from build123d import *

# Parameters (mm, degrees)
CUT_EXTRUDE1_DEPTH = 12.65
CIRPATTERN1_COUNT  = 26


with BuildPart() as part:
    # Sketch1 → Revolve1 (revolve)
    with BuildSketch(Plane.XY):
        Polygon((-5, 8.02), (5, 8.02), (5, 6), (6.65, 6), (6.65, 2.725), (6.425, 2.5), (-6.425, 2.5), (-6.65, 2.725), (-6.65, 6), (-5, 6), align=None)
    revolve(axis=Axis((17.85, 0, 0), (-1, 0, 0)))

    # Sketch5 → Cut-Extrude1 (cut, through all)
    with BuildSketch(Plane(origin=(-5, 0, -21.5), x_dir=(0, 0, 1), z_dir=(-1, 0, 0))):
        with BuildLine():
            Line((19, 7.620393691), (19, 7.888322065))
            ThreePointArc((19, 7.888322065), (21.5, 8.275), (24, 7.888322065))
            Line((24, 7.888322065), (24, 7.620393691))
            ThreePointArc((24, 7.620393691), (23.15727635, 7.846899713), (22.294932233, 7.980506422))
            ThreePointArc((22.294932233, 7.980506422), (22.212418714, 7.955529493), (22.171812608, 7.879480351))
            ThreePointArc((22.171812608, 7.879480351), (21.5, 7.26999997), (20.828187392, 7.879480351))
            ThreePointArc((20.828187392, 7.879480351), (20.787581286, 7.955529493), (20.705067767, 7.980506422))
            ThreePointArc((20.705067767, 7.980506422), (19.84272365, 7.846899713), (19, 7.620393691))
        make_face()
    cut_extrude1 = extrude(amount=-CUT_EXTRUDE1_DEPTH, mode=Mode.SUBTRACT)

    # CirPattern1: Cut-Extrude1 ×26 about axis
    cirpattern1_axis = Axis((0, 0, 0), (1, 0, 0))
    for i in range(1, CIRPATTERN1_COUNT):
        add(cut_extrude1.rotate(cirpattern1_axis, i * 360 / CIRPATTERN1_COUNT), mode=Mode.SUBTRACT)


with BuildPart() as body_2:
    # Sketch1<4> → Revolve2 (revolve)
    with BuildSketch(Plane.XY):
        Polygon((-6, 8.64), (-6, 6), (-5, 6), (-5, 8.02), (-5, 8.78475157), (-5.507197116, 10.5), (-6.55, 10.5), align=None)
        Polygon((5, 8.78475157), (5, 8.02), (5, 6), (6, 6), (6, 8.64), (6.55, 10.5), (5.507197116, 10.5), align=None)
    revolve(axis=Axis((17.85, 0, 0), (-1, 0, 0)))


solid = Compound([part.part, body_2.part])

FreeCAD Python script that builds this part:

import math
import FreeCAD as App
import Part
import Sketcher


def add_polygon(sketch, points):
    """Adds a closed chain of lines whose ends are joined by coincident constraints."""
    first, n = sketch.GeometryCount, len(points)
    for a, b in zip(points, points[1:] + points[:1]):
        sketch.addGeometry(Part.LineSegment(App.Vector(*a, 0), App.Vector(*b, 0)), False)
    for i in range(n):
        sketch.addConstraint(Sketcher.Constraint("Coincident", first + i, 2, first + (i + 1) % n, 1))

doc = App.newDocument("Part")
body = doc.addObject("PartDesign::Body", "Body")

# Sketch on XY plane
sketch1 = body.newObject("Sketcher::SketchObject", "Sketch")
sketch1.AttachmentSupport = (doc.getObject("XY_Plane"), [""])
sketch1.MapMode = "FlatFace"
add_polygon(sketch1, [(5, 8.02), (-5, 8.02), (-5, 6), (-6.65, 6), (-6.65, 2.73), (-6.42, 2.5), (6.42, 2.5), (6.65, 2.73), (6.65, 6), (5, 6)])  # lines 0-9
sketch1.addConstraint(Sketcher.Constraint("Horizontal", 0))
sketch1.addConstraint(Sketcher.Constraint("Vertical", 1))
sketch1.addConstraint(Sketcher.Constraint("Horizontal", 2))
sketch1.addConstraint(Sketcher.Constraint("Vertical", 3))
sketch1.addConstraint(Sketcher.Constraint("Horizontal", 5))
sketch1.addConstraint(Sketcher.Constraint("Vertical", 7))
sketch1.addConstraint(Sketcher.Constraint("Horizontal", 8))
sketch1.addConstraint(Sketcher.Constraint("Vertical", 9))
sketch1.addConstraint(Sketcher.Constraint("Symmetric", 3, 2, 6, 2, -2))
sketch1.addConstraint(Sketcher.Constraint("Symmetric", 1, 2, 8, 2, -2))
sketch1.addConstraint(Sketcher.Constraint("Perpendicular", 4, 6))
sketch1.addConstraint(Sketcher.Constraint("Equal", 4, 6))
sketch1.addConstraint(Sketcher.Constraint("DistanceX", 0, 2, 0, 1, 10.0))
sketch1.addConstraint(Sketcher.Constraint("DistanceY", -1, 1, 1, 2, 6.0))
sketch1.addConstraint(Sketcher.Constraint("DistanceX", 2, 2, 2, 1, 1.65))
sketch1.addConstraint(Sketcher.Constraint("DistanceX", 5, 1, 5, 2, 12.85))
sketch1.addConstraint(Sketcher.Constraint("DistanceY", 1, 2, 1, 1, 2.02))
sketch1.addConstraint(Sketcher.Constraint("DistanceY", -1, 1, 4, 2, 2.5))
revolution = body.newObject("PartDesign::Revolution", "Revolution")
revolution.Profile = sketch1
revolution.ReferenceAxis = (sketch1, ["H_Axis"])
revolution.Angle = 360

# Sketch on YZ plane
sketch2 = body.newObject("Sketcher::SketchObject", "Sketch001")
sketch2.AttachmentSupport = (doc.getObject("YZ_Plane"), [""])
sketch2.MapMode = "FlatFace"
sketch2.AttachmentOffset = App.Placement(App.Vector(0, 0, -5), App.Rotation())
sketch2.addGeometry(Part.LineSegment(App.Vector(7.89, -2.5, 0), App.Vector(7.62, -2.5, 0)), False)
sketch2.addGeometry(Part.ArcOfCircle(Part.Circle(App.Vector(0, 0, 0), App.Vector(0, 0, 1), 8.02), math.radians(-18.16), math.radians(-5.69)), False)
sketch2.addGeometry(Part.ArcOfCircle(Part.Circle(App.Vector(7.87, -0.78, 0), App.Vector(0, 0, 1), 0.11), math.radians(-6), math.radians(84)), False)
sketch2.addGeometry(Part.ArcOfCircle(Part.Circle(App.Vector(7.94, 0, 0), App.Vector(0, 0, 1), 0.68), math.radians(96), math.radians(264)), False)
sketch2.addGeometry(Part.ArcOfCircle(Part.Circle(App.Vector(7.87, 0.78, 0), App.Vector(0, 0, 1), 0.11), math.radians(-84), math.radians(6)), False)
sketch2.addGeometry(Part.ArcOfCircle(Part.Circle(App.Vector(0, 0, 0), App.Vector(0, 0, 1), 8.02), math.radians(5.69), math.radians(18.16)), False)
sketch2.addGeometry(Part.LineSegment(App.Vector(7.62, 2.5, 0), App.Vector(7.89, 2.5, 0)), False)
sketch2.addGeometry(Part.ArcOfCircle(Part.Circle(App.Vector(0, 0, 0), App.Vector(0, 0, 1), 8.28), math.radians(-18), math.radians(18)), False)
sketch2.addConstraint(Sketcher.Constraint("Coincident", 0, 2, 1, 1))
sketch2.addConstraint(Sketcher.Constraint("Tangent", 1, 2, 2, 1))
sketch2.addConstraint(Sketcher.Constraint("Tangent", 2, 2, 3, 2))
sketch2.addConstraint(Sketcher.Constraint("Tangent", 3, 1, 4, 1))
sketch2.addConstraint(Sketcher.Constraint("Tangent", 4, 2, 5, 1))
sketch2.addConstraint(Sketcher.Constraint("Coincident", 5, 2, 6, 1))
sketch2.addConstraint(Sketcher.Constraint("Coincident", 6, 2, 7, 2))
sketch2.addConstraint(Sketcher.Constraint("Coincident", 7, 1, 0, 1))
sketch2.addConstraint(Sketcher.Constraint("Horizontal", 0))
sketch2.addConstraint(Sketcher.Constraint("Horizontal", 6))
sketch2.addConstraint(Sketcher.Constraint("Coincident", 1, 3, -1, 1))
sketch2.addConstraint(Sketcher.Constraint("Coincident", 5, 3, -1, 1))
sketch2.addConstraint(Sketcher.Constraint("Coincident", 7, 3, -1, 1))
sketch2.addConstraint(Sketcher.Constraint("Equal", 2, 4))
sketch2.addConstraint(Sketcher.Constraint("Equal", 1, 5))
sketch2.addConstraint(Sketcher.Constraint("PointOnObject", 3, 3, -1))
sketch2.addConstraint(Sketcher.Constraint("Vertical", 0, 2, 5, 2))
sketch2.addConstraint(Sketcher.Constraint("Radius", 1, 8.02))
sketch2.addConstraint(Sketcher.Constraint("Radius", 3, 0.675))
sketch2.addConstraint(Sketcher.Constraint("Radius", 7, 8.275))
sketch2.addConstraint(Sketcher.Constraint("DistanceY", 0, 2, -1, 1, 2.5))
sketch2.addConstraint(Sketcher.Constraint("Radius", 2, 0.1125))
sketch2.addConstraint(Sketcher.Constraint("DistanceX", -1, 1, 3, 3, 7.945))
pocket1 = body.newObject("PartDesign::Pocket", "Pocket")
pocket1.Profile = sketch2
pocket1.Type = "ThroughAll"
pocket1.Reversed = True
doc.recompute()

polarpattern = body.newObject("PartDesign::PolarPattern", "PolarPattern")
polarpattern.Originals = [pocket1]
polarpattern.Axis = (doc.getObject("X_Axis"), [""])
polarpattern.Angle = 360
polarpattern.Occurrences = 26
body.Tip = polarpattern
body2 = doc.addObject("PartDesign::Body", "Body001")
body2.AllowCompound = True

# Sketch on XY plane
sketch3 = body2.newObject("Sketcher::SketchObject", "Sketch002")
sketch3.AttachmentSupport = (doc.getObject("XY_Plane001"), [""])
sketch3.MapMode = "FlatFace"
add_polygon(sketch3, [(-6, 8.6), (-6, 6), (-5, 6), (-5, 8.8), (-5.5, 10.5), (-6.5, 10.5)])  # lines 0-5
add_polygon(sketch3, [(5, 8.8), (5, 6), (6, 6), (6, 8.6), (6.5, 10.5), (5.5, 10.5)])  # lines 6-11
sketch3.addConstraint(Sketcher.Constraint("Vertical", 0))
sketch3.addConstraint(Sketcher.Constraint("Horizontal", 1))
sketch3.addConstraint(Sketcher.Constraint("Vertical", 2))
sketch3.addConstraint(Sketcher.Constraint("Horizontal", 4))
sketch3.addConstraint(Sketcher.Constraint("Vertical", 6))
sketch3.addConstraint(Sketcher.Constraint("Horizontal", 7))
sketch3.addConstraint(Sketcher.Constraint("Vertical", 8))
sketch3.addConstraint(Sketcher.Constraint("Horizontal", 10))
sketch3.addConstraint(Sketcher.Constraint("Symmetric", 1, 2, 6, 2, -2))
sketch3.addConstraint(Sketcher.Constraint("Symmetric", 5, 2, 8, 2, -2))
sketch3.addConstraint(Sketcher.Constraint("Symmetric", 4, 2, 9, 2, -2))
sketch3.addConstraint(Sketcher.Constraint("Parallel", 3, 5))
sketch3.addConstraint(Sketcher.Constraint("Parallel", 9, 11))
sketch3.addConstraint(Sketcher.Constraint("Horizontal", 2, 2, 11, 2))
sketch3.addConstraint(Sketcher.Constraint("DistanceX", 1, 1, 1, 2, 1.0))
sketch3.addConstraint(Sketcher.Constraint("DistanceX", 0, 2, -1, 1, 6.0))
sketch3.addConstraint(Sketcher.Constraint("DistanceY", -1, 1, 0, 2, 6.0))
sketch3.addConstraint(Sketcher.Constraint("DistanceY", 0, 2, 0, 1, 2.64))
sketch3.addConstraint(Sketcher.Constraint("DistanceY", -1, 1, 3, 2, 10.5))
sketch3.addConstraint(Sketcher.Constraint("DistanceX", 4, 2, -1, 1, 6.55))
sketch3.addConstraint(Sketcher.Constraint("DistanceY", 2, 1, 2, 2, 2.784752))
revolution2 = body2.newObject("PartDesign::Revolution", "Revolution001")
revolution2.Profile = sketch3
revolution2.ReferenceAxis = (sketch3, ["H_Axis"])
revolution2.Angle = 360

doc.recompute()
